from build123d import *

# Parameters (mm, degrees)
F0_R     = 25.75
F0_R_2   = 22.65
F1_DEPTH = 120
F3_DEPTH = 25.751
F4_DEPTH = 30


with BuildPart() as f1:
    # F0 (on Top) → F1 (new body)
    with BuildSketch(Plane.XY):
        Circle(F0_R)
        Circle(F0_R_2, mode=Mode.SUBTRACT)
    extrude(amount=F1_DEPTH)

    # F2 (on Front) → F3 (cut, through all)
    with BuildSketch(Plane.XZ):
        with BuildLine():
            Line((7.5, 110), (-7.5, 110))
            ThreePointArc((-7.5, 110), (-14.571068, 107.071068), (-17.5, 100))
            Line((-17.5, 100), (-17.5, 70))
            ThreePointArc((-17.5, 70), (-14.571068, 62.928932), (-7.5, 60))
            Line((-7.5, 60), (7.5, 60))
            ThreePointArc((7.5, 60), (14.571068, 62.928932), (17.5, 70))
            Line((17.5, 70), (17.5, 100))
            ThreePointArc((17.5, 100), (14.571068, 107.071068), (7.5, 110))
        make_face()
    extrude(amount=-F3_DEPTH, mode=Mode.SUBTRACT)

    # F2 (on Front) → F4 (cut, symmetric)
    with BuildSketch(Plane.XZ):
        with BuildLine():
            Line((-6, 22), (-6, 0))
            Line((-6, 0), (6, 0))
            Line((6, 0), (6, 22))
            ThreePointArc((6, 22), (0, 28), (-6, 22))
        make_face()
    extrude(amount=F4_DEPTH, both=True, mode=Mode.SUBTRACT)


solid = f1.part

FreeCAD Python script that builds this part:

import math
import FreeCAD as App
import Part
import Sketcher

V = App.Vector
Q = App.Units.Quantity

doc = App.newDocument("Part")
body = doc.addObject("PartDesign::Body", "Body")

# Sketch on XY plane
sketch1 = doc.addObject("Sketcher::SketchObject", "Sketch")
body.addObject(sketch1)
sketch1.AttachmentSupport = (doc.XY_Plane, [""])
sketch1.MapMode = "FlatFace"
sketch1.addGeometry(Part.Circle(V(0, 0, 0), V(0, 0, 1), 26), False)
sketch1.addGeometry(Part.Circle(V(0, 0, 0), V(0, 0, 1), 23), False)
sketch1.addConstraint(Sketcher.Constraint("Coincident", 0, 3, -1, 1))
sketch1.addConstraint(Sketcher.Constraint("Coincident", 1, 3, -1, 1))
sketch1.addConstraint(Sketcher.Constraint("Diameter", 0, Q("51.5 mm")))
sketch1.addConstraint(Sketcher.Constraint("Diameter", 1, Q("45.3 mm")))
pad1 = doc.addObject("PartDesign::Pad", "Pad")
body.addObject(pad1)
pad1.Profile = sketch1
pad1.Length = 120

# Sketch on XZ plane
sketch2 = doc.addObject("Sketcher::SketchObject", "Sketch001")
body.addObject(sketch2)
sketch2.AttachmentSupport = (doc.XZ_Plane, [""])
sketch2.MapMode = "FlatFace"
sketch2.addGeometry(Part.LineSegment(V(8, 110, 0), V(-8, 110, 0)), False)
sketch2.addGeometry(Part.ArcOfCircle(Part.Circle(V(-8, 100, 0), V(0, 0, 1), 10), math.radians(90), math.radians(180)), False)
sketch2.addGeometry(Part.LineSegment(V(-18, 100, 0), V(-18, 70, 0)), False)
sketch2.addGeometry(Part.ArcOfCircle(Part.Circle(V(-8, 70, 0), V(0, 0, 1), 10), math.radians(180), math.radians(270)), False)
sketch2.addGeometry(Part.LineSegment(V(-8, 60, 0), V(8, 60, 0)), False)
sketch2.addGeometry(Part.ArcOfCircle(Part.Circle(V(8, 70, 0), V(0, 0, 1), 10), math.radians(-90), math.radians(0)), False)
sketch2.addGeometry(Part.LineSegment(V(18, 70, 0), V(18, 100, 0)), False)
sketch2.addGeometry(Part.ArcOfCircle(Part.Circle(V(8, 100, 0), V(0, 0, 1), 10), math.radians(0), math.radians(90)), False)
sketch2.addConstraint(Sketcher.Constraint("Tangent", 0, 2, 1, 1))
sketch2.addConstraint(Sketcher.Constraint("Tangent", 1, 2, 2, 1))
sketch2.addConstraint(Sketcher.Constraint("Tangent", 2, 2, 3, 1))
sketch2.addConstraint(Sketcher.Constraint("Tangent", 3, 2, 4, 1))
sketch2.addConstraint(Sketcher.Constraint("Tangent", 4, 2, 5, 1))
sketch2.addConstraint(Sketcher.Constraint("Tangent", 5, 2, 6, 1))
sketch2.addConstraint(Sketcher.Constraint("Tangent", 6, 2, 7, 1))
sketch2.addConstraint(Sketcher.Constraint("Tangent", 7, 2, 0, 1))
sketch2.addConstraint(Sketcher.Constraint("Horizontal", 0))
sketch2.addConstraint(Sketcher.Constraint("Vertical", 2))
sketch2.addConstraint(Sketcher.Constraint("Horizontal", 4))
sketch2.addConstraint(Sketcher.Constraint("Vertical", 6))
sketch2.addConstraint(Sketcher.Constraint("Equal", 1, 3))
sketch2.addConstraint(Sketcher.Constraint("Equal", 3, 5))
sketch2.addConstraint(Sketcher.Constraint("Equal", 5, 7))
sketch2.addConstraint(Sketcher.Constraint("Radius", 1, Q("9.999999 mm")))
sketch2.addConstraint(Sketcher.Constraint("DistanceX", 0, 2, 0, 1, Q("15 mm")))
sketch2.addConstraint(Sketcher.Constraint("DistanceY", 2, 2, 2, 1, Q("30 mm")))
sketch2.addConstraint(Sketcher.Constraint("DistanceY", -1, 1, 1, 3, Q("100.000001 mm")))
sketch2.addConstraint(Sketcher.Constraint("DistanceX", 1, 3, -1, 1, Q("7.500001 mm")))
pocket1 = doc.addObject("PartDesign::Pocket", "Pocket")
body.addObject(pocket1)
pocket1.Profile = sketch2
pocket1.Type = "ThroughAll"

# Sketch on XZ plane
sketch3 = doc.addObject("Sketcher::SketchObject", "Sketch002")
body.addObject(sketch3)
sketch3.AttachmentSupport = (doc.XZ_Plane, [""])
sketch3.MapMode = "FlatFace"
sketch3.addGeometry(Part.LineSegment(V(-6, 22, 0), V(-6, 0, 0)), False)
sketch3.addGeometry(Part.LineSegment(V(-6, 0, 0), V(6, 0, 0)), False)
sketch3.addGeometry(Part.LineSegment(V(6, 0, 0), V(6, 22, 0)), False)
sketch3.addGeometry(Part.ArcOfCircle(Part.Circle(V(0, 22, 0), V(0, 0, 1), 6), math.radians(0), math.radians(180)), False)
sketch3.addConstraint(Sketcher.Constraint("Coincident", 0, 2, 1, 1))
sketch3.addConstraint(Sketcher.Constraint("Coincident", 1, 2, 2, 1))
sketch3.addConstraint(Sketcher.Constraint("Tangent", 2, 2, 3, 1))
sketch3.addConstraint(Sketcher.Constraint("Tangent", 3, 2, 0, 1))
sketch3.addConstraint(Sketcher.Constraint("Vertical", 0))
sketch3.addConstraint(Sketcher.Constraint("Horizontal", 1))
sketch3.addConstraint(Sketcher.Constraint("Vertical", 2))
sketch3.addConstraint(Sketcher.Constraint("Symmetric", 0, 2, 1, 2, -1, 1))
sketch3.addConstraint(Sketcher.Constraint("Radius", 3, Q("6 mm")))
sketch3.addConstraint(Sketcher.Constraint("DistanceY", 0, 2, 0, 1, Q("22 mm")))
pocket2 = doc.addObject("PartDesign::Pocket", "Pocket001")
body.addObject(pocket2)
pocket2.Profile = sketch3
pocket2.Length = 60
pocket2.Midplane = True

doc.recompute()
